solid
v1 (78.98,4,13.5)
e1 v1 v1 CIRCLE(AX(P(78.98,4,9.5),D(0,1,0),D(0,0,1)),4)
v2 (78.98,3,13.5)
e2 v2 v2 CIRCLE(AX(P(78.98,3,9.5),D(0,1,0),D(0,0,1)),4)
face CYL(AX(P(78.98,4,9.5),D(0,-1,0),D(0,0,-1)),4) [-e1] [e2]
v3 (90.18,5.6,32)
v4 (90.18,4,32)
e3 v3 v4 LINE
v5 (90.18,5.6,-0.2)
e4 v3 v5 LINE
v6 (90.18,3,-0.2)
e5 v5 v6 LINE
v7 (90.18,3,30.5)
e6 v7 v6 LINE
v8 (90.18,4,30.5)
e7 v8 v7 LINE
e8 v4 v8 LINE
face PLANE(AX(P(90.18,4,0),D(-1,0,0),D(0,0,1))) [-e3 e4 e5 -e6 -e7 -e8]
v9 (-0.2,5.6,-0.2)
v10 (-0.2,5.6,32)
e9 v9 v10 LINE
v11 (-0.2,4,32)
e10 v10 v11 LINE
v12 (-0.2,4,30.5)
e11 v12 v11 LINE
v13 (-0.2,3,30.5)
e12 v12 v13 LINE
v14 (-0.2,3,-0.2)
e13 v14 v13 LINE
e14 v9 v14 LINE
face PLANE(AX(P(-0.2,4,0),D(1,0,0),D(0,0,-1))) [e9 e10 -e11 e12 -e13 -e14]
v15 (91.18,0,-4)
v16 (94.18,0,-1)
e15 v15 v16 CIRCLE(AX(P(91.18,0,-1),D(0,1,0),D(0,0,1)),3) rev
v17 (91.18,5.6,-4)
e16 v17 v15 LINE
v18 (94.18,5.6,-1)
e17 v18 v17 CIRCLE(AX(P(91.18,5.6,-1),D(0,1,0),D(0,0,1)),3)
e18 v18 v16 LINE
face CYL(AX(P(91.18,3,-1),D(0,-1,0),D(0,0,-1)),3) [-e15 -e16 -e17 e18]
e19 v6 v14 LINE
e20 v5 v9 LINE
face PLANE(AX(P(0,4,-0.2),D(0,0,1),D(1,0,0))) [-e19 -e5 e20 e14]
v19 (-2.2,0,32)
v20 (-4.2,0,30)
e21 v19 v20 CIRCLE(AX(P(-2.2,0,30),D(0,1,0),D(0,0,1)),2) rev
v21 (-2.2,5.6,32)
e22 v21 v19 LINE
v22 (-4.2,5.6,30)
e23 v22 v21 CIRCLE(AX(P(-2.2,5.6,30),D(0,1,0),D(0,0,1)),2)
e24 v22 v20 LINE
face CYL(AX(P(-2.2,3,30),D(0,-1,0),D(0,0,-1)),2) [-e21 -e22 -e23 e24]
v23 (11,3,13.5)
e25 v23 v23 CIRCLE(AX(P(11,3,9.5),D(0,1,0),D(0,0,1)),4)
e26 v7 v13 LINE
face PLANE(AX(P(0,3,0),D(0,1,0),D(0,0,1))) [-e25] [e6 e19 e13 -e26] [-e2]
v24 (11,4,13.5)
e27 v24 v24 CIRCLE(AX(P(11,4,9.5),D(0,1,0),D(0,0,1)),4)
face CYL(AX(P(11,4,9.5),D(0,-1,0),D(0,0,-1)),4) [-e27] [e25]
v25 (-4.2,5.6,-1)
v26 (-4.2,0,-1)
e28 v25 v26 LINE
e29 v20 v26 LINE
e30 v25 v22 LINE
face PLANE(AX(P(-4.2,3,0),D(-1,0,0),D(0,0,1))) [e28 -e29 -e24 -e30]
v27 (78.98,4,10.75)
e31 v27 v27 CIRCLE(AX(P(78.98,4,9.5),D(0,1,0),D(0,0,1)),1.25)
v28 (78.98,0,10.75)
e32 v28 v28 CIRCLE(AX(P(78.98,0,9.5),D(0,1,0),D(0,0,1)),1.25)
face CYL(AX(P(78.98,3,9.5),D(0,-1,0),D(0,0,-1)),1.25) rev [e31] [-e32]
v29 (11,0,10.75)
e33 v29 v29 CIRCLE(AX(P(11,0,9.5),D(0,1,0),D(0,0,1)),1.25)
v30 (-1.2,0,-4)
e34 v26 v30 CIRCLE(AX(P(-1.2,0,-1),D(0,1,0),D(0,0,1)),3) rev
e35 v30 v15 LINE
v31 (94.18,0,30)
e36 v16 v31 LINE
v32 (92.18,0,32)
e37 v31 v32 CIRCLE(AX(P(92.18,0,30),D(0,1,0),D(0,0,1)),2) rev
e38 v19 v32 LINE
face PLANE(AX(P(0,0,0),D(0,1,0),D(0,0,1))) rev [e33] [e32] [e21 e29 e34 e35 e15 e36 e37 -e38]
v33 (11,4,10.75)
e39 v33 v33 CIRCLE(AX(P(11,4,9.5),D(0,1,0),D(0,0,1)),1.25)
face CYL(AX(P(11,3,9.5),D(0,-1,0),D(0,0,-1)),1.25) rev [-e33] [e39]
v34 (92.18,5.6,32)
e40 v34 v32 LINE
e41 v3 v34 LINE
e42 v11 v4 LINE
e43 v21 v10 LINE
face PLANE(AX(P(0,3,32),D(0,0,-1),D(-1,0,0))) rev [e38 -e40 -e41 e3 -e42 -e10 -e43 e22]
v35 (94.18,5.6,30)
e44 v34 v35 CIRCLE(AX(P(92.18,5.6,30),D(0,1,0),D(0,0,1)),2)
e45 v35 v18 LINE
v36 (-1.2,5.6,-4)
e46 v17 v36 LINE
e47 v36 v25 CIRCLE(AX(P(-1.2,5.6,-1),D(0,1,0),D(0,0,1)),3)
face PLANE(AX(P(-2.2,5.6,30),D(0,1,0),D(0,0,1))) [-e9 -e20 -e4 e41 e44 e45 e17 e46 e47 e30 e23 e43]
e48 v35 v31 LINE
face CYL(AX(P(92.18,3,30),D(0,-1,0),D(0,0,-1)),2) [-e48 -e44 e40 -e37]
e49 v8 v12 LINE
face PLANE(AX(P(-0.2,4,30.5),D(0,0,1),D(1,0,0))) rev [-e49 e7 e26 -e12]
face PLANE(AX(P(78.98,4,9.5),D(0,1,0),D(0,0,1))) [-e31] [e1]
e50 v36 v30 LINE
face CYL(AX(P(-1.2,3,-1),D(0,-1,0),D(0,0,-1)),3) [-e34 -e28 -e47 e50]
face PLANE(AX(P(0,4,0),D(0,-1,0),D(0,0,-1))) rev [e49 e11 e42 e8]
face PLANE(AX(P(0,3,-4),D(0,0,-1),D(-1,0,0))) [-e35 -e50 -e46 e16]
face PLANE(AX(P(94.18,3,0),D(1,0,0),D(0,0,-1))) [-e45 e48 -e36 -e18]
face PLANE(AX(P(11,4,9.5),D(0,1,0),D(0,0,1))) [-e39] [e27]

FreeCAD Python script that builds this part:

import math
import FreeCAD as App
import Part
import Sketcher

V = App.Vector


def add_polygon(sketch, points):
    """Adds a closed chain of lines whose ends are joined by coincident constraints."""
    first, n = sketch.GeometryCount, len(points)
    for a, b in zip(points, points[1:] + points[:1]):
        sketch.addGeometry(Part.LineSegment(App.Vector(*a, 0), App.Vector(*b, 0)), False)
    for i in range(n):
        sketch.addConstraint(Sketcher.Constraint("Coincident", first + i, 2, first + (i + 1) % n, 1))

doc = App.newDocument("Part")
body = doc.addObject("PartDesign::Body", "Body")

sketch1 = body.newObject("Sketcher::SketchObject", "Sketch")
sketch1.AttachmentSupport = (doc.getObject("XZ_Plane"), [""])
sketch1.MapMode = "FlatFace"
sketch1.addGeometry([
    Part.ArcOfCircle(Part.Circle(V(92.2, 30, 0), V(0, 0, 1), 2), math.radians(0), math.radians(90)),
    Part.LineSegment(V(94.2, 30, 0), V(94.2, -1, 0)),
    Part.ArcOfCircle(Part.Circle(V(91.2, -1, 0), V(0, 0, 1), 3), math.radians(-90), math.radians(0)),
    Part.LineSegment(V(91.2, -4, 0), V(-1.2, -4, 0)),
    Part.ArcOfCircle(Part.Circle(V(-1.2, -1, 0), V(0, 0, 1), 3), math.radians(180), math.radians(270)),
    Part.LineSegment(V(-4.2, -1, 0), V(-4.2, 30, 0)),
    Part.ArcOfCircle(Part.Circle(V(-2.2, 30, 0), V(0, 0, 1), 2), math.radians(90), math.radians(180)),
    Part.LineSegment(V(-2.2, 32, 0), V(92.2, 32, 0)),
    Part.Circle(V(11, 9.5, 0), V(0, 0, 1), 1.2),
    Part.Circle(V(79, 9.5, 0), V(0, 0, 1), 1.2),
], False)
sketch1.addConstraint([
    Sketcher.Constraint("Tangent", 0, 1, 1, 1),
    Sketcher.Constraint("Tangent", 1, 2, 2, 2),
    Sketcher.Constraint("Tangent", 2, 1, 3, 1),
    Sketcher.Constraint("Tangent", 3, 2, 4, 2),
    Sketcher.Constraint("Tangent", 4, 1, 5, 1),
    Sketcher.Constraint("Tangent", 5, 2, 6, 2),
    Sketcher.Constraint("Tangent", 6, 1, 7, 1),
    Sketcher.Constraint("Tangent", 7, 2, 0, 2),
    Sketcher.Constraint("Vertical", 1),
    Sketcher.Constraint("Horizontal", 3),
    Sketcher.Constraint("Vertical", 5),
    Sketcher.Constraint("Horizontal", 7),
    Sketcher.Constraint("Equal", 2, 4),
    Sketcher.Constraint("Equal", 0, 6),
    Sketcher.Constraint("Equal", 8, 9),
    Sketcher.Constraint("Horizontal", 8, 3, 9, 3),
    Sketcher.Constraint("Radius", 0, 2.0),
    Sketcher.Constraint("Radius", 2, 3.0),
    Sketcher.Constraint("Diameter", 8, 2.5),
    Sketcher.Constraint("DistanceY", 1, 2, 1, 1, 31.0),
    Sketcher.Constraint("DistanceY", -1, 1, 0, 3, 30.0),
    Sketcher.Constraint("DistanceX", -1, 1, 8, 3, 11.0),
    Sketcher.Constraint("DistanceX", 3, 2, 3, 1, 92.38),
    Sketcher.Constraint("DistanceX", 4, 3, -1, 1, 1.2),
    Sketcher.Constraint("DistanceY", -1, 1, 8, 3, 9.5),
    Sketcher.Constraint("DistanceX", 9, 3, 2, 3, 12.2),
])
pad1 = body.newObject("PartDesign::Pad", "Pad")
pad1.Profile = sketch1
pad1.Length = 3
pad1.Reversed = True

sketch2 = body.newObject("Sketcher::SketchObject", "Sketch001")
sketch2.AttachmentSupport = (doc.getObject("XZ_Plane"), [""])
sketch2.MapMode = "FlatFace"
sketch2.AttachmentOffset = App.Placement(V(0, 0, -3), App.Rotation())
sketch2.addGeometry([
    Part.Circle(V(11, 9.5, 0), V(0, 0, 1), 4),
    Part.Circle(V(11, 9.5, 0), V(0, 0, 1), 1.2),
    Part.ArcOfCircle(Part.Circle(V(-2.2, 30, 0), V(0, 0, 1), 2), math.radians(90), math.radians(180)),
    Part.LineSegment(V(-2.2, 32, 0), V(-0.2, 32, 0)),
    Part.LineSegment(V(-0.2, 32, 0), V(-0.2, -0.2, 0)),
    Part.LineSegment(V(-0.2, -0.2, 0), V(90.2, -0.2, 0)),
    Part.LineSegment(V(90.2, -0.2, 0), V(90.2, 32, 0)),
    Part.LineSegment(V(90.2, 32, 0), V(92.2, 32, 0)),
    Part.ArcOfCircle(Part.Circle(V(92.2, 30, 0), V(0, 0, 1), 2), math.radians(0), math.radians(90)),
    Part.LineSegment(V(94.2, 30, 0), V(94.2, -1, 0)),
    Part.ArcOfCircle(Part.Circle(V(91.2, -1, 0), V(0, 0, 1), 3), math.radians(-90), math.radians(0)),
    Part.LineSegment(V(91.2, -4, 0), V(-1.2, -4, 0)),
    Part.ArcOfCircle(Part.Circle(V(-1.2, -1, 0), V(0, 0, 1), 3), math.radians(180), math.radians(270)),
    Part.LineSegment(V(-4.2, -1, 0), V(-4.2, 30, 0)),
    Part.Circle(V(79, 9.5, 0), V(0, 0, 1), 4),
    Part.Circle(V(79, 9.5, 0), V(0, 0, 1), 1.2),
], False)
sketch2.addConstraint([
    Sketcher.Constraint("Tangent", 2, 1, 3, 1),
    Sketcher.Constraint("Coincident", 3, 2, 4, 1),
    Sketcher.Constraint("Coincident", 4, 2, 5, 1),
    Sketcher.Constraint("Coincident", 5, 2, 6, 1),
    Sketcher.Constraint("Coincident", 6, 2, 7, 1),
    Sketcher.Constraint("Tangent", 7, 2, 8, 2),
    Sketcher.Constraint("Tangent", 8, 1, 9, 1),
    Sketcher.Constraint("Tangent", 9, 2, 10, 2),
    Sketcher.Constraint("Tangent", 10, 1, 11, 1),
    Sketcher.Constraint("Tangent", 11, 2, 12, 2),
    Sketcher.Constraint("Tangent", 12, 1, 13, 1),
    Sketcher.Constraint("Tangent", 13, 2, 2, 2),
    Sketcher.Constraint("Horizontal", 3),
    Sketcher.Constraint("Vertical", 4),
    Sketcher.Constraint("Horizontal", 5),
    Sketcher.Constraint("Vertical", 6),
    Sketcher.Constraint("Horizontal", 7),
    Sketcher.Constraint("Vertical", 9),
    Sketcher.Constraint("Horizontal", 11),
    Sketcher.Constraint("Vertical", 13),
    Sketcher.Constraint("Coincident", 1, 3, 0, 3),
    Sketcher.Constraint("Coincident", 15, 3, 14, 3),
    Sketcher.Constraint("Equal", 2, 8),
    Sketcher.Constraint("Equal", 10, 12),
    Sketcher.Constraint("Equal", 0, 14),
    Sketcher.Constraint("Equal", 1, 15),
    Sketcher.Constraint("Horizontal", 2, 3, 8, 3),
    Sketcher.Constraint("Horizontal", 1, 3, 14, 3),
    Sketcher.Constraint("Equal", 3, 7),
    Sketcher.Constraint("Diameter", 0, 8.0),
    Sketcher.Constraint("Radius", 2, 2.0),
    Sketcher.Constraint("Radius", 10, 3.0),
    Sketcher.Constraint("Diameter", 1, 2.5),
    Sketcher.Constraint("DistanceX", 3, 1, 3, 2, 2.0),
    Sketcher.Constraint("DistanceY", 9, 2, 9, 1, 31.0),
    Sketcher.Constraint("DistanceY", 4, 2, 4, 1, 32.2),
    Sketcher.Constraint("DistanceX", -1, 1, 0, 3, 11.0),
    Sketcher.Constraint("DistanceY", -1, 1, 2, 3, 30.0),
    Sketcher.Constraint("DistanceX", 5, 1, 5, 2, 90.38),
    Sketcher.Constraint("DistanceY", -1, 1, 0, 3, 9.5),
    Sketcher.Constraint("DistanceX", 2, 3, -1, 1, 2.2),
    Sketcher.Constraint("DistanceX", 14, 3, 10, 3, 12.2),
])
pad2 = body.newObject("PartDesign::Pad", "Pad001")
pad2.Profile = sketch2
pad2.Length = 1
pad2.Reversed = True

sketch3 = body.newObject("Sketcher::SketchObject", "Sketch002")
sketch3.AttachmentSupport = (doc.getObject("XZ_Plane"), [""])
sketch3.MapMode = "FlatFace"
sketch3.AttachmentOffset = App.Placement(V(0, 0, -4), App.Rotation())
sketch3.addGeometry([
    Part.ArcOfCircle(Part.Circle(V(-2.2, 30, 0), V(0, 0, 1), 2), math.radians(90), math.radians(180)),
    Part.LineSegment(V(-2.2, 32, 0), V(-0.2, 32, 0)),
    Part.LineSegment(V(-0.2, 32, 0), V(-0.2, -0.2, 0)),
    Part.LineSegment(V(-0.2, -0.2, 0), V(90.2, -0.2, 0)),
    Part.LineSegment(V(90.2, -0.2, 0), V(90.2, 32, 0)),
    Part.LineSegment(V(90.2, 32, 0), V(92.2, 32, 0)),
    Part.ArcOfCircle(Part.Circle(V(92.2, 30, 0), V(0, 0, 1), 2), math.radians(0), math.radians(90)),
    Part.LineSegment(V(94.2, 30, 0), V(94.2, -1, 0)),
    Part.ArcOfCircle(Part.Circle(V(91.2, -1, 0), V(0, 0, 1), 3), math.radians(-90), math.radians(0)),
    Part.LineSegment(V(91.2, -4, 0), V(-1.2, -4, 0)),
    Part.ArcOfCircle(Part.Circle(V(-1.2, -1, 0), V(0, 0, 1), 3), math.radians(180), math.radians(270)),
    Part.LineSegment(V(-4.2, -1, 0), V(-4.2, 30, 0)),
], False)
sketch3.addConstraint([
    Sketcher.Constraint("Tangent", 0, 1, 1, 1),
    Sketcher.Constraint("Coincident", 1, 2, 2, 1),
    Sketcher.Constraint("Coincident", 2, 2, 3, 1),
    Sketcher.Constraint("Coincident", 3, 2, 4, 1),
    Sketcher.Constraint("Coincident", 4, 2, 5, 1),
    Sketcher.Constraint("Tangent", 5, 2, 6, 2),
    Sketcher.Constraint("Tangent", 6, 1, 7, 1),
    Sketcher.Constraint("Tangent", 7, 2, 8, 2),
    Sketcher.Constraint("Tangent", 8, 1, 9, 1),
    Sketcher.Constraint("Tangent", 9, 2, 10, 2),
    Sketcher.Constraint("Tangent", 10, 1, 11, 1),
    Sketcher.Constraint("Tangent", 11, 2, 0, 2),
    Sketcher.Constraint("Horizontal", 1),
    Sketcher.Constraint("Vertical", 2),
    Sketcher.Constraint("Horizontal", 3),
    Sketcher.Constraint("Vertical", 4),
    Sketcher.Constraint("Horizontal", 5),
    Sketcher.Constraint("Vertical", 7),
    Sketcher.Constraint("Horizontal", 9),
    Sketcher.Constraint("Vertical", 11),
    Sketcher.Constraint("Equal", 0, 6),
    Sketcher.Constraint("Equal", 8, 10),
    Sketcher.Constraint("Horizontal", 0, 3, 6, 3),
    Sketcher.Constraint("Equal", 1, 5),
    Sketcher.Constraint("Radius", 0, 2.0),
    Sketcher.Constraint("Radius", 8, 3.0),
    Sketcher.Constraint("DistanceX", 1, 1, 1, 2, 2.0),
    Sketcher.Constraint("DistanceY", 7, 2, 7, 1, 31.0),
    Sketcher.Constraint("DistanceY", 2, 2, 2, 1, 32.2),
    Sketcher.Constraint("DistanceY", -1, 1, 0, 3, 30.0),
    Sketcher.Constraint("DistanceX", 3, 1, 3, 2, 90.38),
    Sketcher.Constraint("DistanceX", 0, 3, -1, 1, 2.2),
])
pad3 = body.newObject("PartDesign::Pad", "Pad002")
pad3.Profile = sketch3
pad3.Length = 1.6
pad3.Reversed = True

sketch4 = body.newObject("Sketcher::SketchObject", "Sketch003")
sketch4.AttachmentSupport = (doc.getObject("XZ_Plane"), [""])
sketch4.MapMode = "FlatFace"
sketch4.AttachmentOffset = App.Placement(V(0, 0, -3), App.Rotation())
add_polygon(sketch4, [(-0.2, 30.5), (-0.2, 32), (90.2, 32), (90.2, 30.5)])
sketch4.addConstraint([
    Sketcher.Constraint("Vertical", 0),
    Sketcher.Constraint("Horizontal", 1),
    Sketcher.Constraint("Vertical", 2),
    Sketcher.Constraint("Horizontal", 3),
    Sketcher.Constraint("DistanceY", 0, 1, 0, 2, 1.5),
    Sketcher.Constraint("DistanceY", -1, 1, 0, 2, 32.0),
    Sketcher.Constraint("DistanceX", 1, 1, 1, 2, 90.38),
    Sketcher.Constraint("DistanceX", 0, 2, -1, 1, 0.2),
])
pad4 = body.newObject("PartDesign::Pad", "Pad003")
pad4.Profile = sketch4
pad4.Length = 1
pad4.Reversed = True

doc.recompute()
